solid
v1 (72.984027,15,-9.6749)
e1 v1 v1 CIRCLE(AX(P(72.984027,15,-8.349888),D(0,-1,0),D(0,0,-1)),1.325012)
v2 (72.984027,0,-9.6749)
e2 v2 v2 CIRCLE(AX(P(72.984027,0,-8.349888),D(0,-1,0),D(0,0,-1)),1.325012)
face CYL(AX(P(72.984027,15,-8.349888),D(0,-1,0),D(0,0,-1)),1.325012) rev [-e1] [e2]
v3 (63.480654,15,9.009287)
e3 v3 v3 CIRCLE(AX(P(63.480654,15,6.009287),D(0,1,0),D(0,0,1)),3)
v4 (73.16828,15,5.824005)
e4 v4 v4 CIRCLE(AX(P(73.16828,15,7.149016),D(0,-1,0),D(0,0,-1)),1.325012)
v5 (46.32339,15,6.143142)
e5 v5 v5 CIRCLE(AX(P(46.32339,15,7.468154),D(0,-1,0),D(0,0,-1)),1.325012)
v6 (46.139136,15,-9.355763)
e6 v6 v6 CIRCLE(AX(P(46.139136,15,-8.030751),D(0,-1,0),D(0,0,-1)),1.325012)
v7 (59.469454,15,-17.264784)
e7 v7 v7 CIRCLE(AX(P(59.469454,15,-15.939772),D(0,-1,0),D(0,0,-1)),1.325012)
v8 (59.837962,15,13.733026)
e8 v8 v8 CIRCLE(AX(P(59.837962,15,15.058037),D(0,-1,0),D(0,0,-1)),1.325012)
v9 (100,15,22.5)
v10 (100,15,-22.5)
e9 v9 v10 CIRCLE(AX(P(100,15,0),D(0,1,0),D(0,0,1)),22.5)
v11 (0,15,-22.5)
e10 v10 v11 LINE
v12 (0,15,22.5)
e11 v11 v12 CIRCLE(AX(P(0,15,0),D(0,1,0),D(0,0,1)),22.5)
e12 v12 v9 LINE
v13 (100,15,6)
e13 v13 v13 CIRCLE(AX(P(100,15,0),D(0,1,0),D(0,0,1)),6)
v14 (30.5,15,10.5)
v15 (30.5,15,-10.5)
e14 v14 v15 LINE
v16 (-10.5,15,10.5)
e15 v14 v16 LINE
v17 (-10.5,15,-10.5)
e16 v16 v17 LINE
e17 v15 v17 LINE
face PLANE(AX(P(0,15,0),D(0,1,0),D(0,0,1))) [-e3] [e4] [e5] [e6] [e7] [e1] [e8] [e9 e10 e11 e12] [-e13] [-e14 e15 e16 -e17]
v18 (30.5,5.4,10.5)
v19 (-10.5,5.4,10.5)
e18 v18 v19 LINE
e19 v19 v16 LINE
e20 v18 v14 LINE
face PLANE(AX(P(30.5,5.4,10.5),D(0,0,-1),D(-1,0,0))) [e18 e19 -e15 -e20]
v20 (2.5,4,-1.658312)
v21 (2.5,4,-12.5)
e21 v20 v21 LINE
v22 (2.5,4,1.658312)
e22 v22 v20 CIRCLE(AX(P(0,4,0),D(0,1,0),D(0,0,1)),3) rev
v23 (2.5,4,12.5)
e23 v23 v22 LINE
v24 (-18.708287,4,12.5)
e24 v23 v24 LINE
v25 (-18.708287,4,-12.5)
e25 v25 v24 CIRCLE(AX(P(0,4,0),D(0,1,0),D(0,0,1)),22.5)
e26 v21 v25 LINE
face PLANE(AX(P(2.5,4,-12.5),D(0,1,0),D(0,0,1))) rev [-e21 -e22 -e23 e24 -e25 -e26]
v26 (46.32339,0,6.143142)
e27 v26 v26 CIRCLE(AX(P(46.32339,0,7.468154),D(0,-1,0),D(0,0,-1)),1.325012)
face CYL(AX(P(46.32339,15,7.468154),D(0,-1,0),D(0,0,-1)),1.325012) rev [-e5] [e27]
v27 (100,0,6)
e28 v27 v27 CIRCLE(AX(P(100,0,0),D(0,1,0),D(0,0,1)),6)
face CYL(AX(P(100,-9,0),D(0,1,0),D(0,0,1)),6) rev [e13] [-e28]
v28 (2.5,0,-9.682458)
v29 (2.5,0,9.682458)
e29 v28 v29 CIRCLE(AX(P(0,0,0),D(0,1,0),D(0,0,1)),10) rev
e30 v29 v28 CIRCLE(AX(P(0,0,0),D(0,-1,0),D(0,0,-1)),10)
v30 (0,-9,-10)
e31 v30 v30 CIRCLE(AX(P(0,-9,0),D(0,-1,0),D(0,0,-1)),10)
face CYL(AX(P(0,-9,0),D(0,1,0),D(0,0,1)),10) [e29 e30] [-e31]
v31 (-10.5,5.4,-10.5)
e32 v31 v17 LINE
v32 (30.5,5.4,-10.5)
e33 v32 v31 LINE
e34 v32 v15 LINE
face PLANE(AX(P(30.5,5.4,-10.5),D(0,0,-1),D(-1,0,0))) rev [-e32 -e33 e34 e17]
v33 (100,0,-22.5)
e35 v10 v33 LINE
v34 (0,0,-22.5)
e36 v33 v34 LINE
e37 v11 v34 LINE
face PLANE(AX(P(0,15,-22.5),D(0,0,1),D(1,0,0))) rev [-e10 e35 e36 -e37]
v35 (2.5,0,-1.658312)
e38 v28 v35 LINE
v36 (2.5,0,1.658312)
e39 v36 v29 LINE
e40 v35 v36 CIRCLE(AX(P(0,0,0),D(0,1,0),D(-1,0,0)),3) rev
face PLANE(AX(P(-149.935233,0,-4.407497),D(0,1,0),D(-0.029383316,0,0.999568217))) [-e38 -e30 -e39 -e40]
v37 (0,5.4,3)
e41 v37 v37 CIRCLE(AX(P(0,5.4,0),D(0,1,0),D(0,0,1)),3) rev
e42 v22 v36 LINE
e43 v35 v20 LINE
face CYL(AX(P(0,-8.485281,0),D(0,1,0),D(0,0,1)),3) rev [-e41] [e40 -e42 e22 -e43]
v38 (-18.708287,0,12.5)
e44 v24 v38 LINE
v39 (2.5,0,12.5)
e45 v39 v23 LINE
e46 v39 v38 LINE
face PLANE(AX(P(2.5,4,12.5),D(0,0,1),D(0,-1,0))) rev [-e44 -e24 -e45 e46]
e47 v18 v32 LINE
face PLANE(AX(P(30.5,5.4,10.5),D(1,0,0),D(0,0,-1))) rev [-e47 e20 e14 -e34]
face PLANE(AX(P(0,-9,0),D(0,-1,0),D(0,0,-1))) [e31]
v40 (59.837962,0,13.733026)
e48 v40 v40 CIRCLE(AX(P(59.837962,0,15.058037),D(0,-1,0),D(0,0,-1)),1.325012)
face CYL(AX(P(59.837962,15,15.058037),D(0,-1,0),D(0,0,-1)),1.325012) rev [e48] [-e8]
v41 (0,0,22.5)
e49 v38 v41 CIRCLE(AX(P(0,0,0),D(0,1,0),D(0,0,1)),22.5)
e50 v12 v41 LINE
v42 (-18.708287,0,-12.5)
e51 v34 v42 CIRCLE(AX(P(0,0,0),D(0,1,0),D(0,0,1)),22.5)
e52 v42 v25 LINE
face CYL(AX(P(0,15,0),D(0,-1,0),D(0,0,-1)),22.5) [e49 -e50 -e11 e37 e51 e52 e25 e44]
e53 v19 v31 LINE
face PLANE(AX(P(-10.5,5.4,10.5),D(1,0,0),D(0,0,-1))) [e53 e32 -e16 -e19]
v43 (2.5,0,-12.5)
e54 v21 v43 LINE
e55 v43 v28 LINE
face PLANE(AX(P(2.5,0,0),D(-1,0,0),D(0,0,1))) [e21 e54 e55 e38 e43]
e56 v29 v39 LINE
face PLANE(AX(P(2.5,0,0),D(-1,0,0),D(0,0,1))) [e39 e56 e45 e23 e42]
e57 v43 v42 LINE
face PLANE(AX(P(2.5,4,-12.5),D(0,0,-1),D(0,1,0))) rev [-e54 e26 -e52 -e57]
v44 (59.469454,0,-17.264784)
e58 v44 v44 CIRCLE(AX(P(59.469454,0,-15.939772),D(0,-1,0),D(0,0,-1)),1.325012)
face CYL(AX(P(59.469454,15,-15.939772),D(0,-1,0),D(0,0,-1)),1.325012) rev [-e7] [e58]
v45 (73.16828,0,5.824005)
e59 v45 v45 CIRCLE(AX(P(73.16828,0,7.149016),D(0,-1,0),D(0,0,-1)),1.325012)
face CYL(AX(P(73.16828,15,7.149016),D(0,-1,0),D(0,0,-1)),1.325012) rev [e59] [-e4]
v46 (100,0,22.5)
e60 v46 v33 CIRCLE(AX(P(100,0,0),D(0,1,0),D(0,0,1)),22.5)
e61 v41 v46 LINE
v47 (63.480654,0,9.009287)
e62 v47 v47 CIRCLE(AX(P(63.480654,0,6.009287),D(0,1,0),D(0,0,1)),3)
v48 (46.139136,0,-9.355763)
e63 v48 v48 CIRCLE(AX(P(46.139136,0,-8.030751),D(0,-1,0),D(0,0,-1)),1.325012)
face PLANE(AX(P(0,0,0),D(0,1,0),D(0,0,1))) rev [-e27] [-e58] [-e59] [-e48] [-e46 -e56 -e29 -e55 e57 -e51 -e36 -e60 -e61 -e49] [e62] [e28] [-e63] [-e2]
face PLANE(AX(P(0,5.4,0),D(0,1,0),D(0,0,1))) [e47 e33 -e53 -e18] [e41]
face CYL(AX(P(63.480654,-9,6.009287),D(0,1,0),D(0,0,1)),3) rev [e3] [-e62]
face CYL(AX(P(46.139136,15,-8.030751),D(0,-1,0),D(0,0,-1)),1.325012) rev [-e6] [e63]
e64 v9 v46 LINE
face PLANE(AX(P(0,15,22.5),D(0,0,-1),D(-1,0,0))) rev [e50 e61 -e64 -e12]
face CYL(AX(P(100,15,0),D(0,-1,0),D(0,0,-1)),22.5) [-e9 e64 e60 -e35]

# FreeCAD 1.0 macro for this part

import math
import FreeCAD as App
import Part
import Sketcher
Q = App.Units.Quantity


def add_polygon(sketch, points):
    """Adds a closed chain of lines whose ends are joined by coincident constraints."""
    first, n = sketch.GeometryCount, len(points)
    for a, b in zip(points, points[1:] + points[:1]):
        sketch.addGeometry(Part.LineSegment(App.Vector(*a, 0), App.Vector(*b, 0)), False)
    for i in range(n):
        sketch.addConstraint(Sketcher.Constraint("Coincident", first + i, 2, first + (i + 1) % n, 1))

doc = App.newDocument("Part")
body = doc.addObject("PartDesign::Body", "Body")

# Sketch on XZ plane
sketch1 = body.newObject("Sketcher::SketchObject", "Sketch")
sketch1.AttachmentSupport = (doc.getObject("XZ_Plane"), [""])
sketch1.MapMode = "FlatFace"
sketch1.addGeometry([
    Part.LineSegment(App.Vector(100, -22, 0), App.Vector(0, -22, 0)),
    Part.ArcOfCircle(Part.Circle(App.Vector(0, 0, 0), App.Vector(0, 0, 1), 22), math.radians(90), math.radians(270)),
    Part.LineSegment(App.Vector(0, 22, 0), App.Vector(100, 22, 0)),
    Part.ArcOfCircle(Part.Circle(App.Vector(100, 0, 0), App.Vector(0, 0, 1), 22), math.radians(-90), math.radians(90)),
], False)
sketch1.addConstraint([
    Sketcher.Constraint("Tangent", 0, 2, 1, 2),
    Sketcher.Constraint("Tangent", 1, 1, 2, 1),
    Sketcher.Constraint("Tangent", 2, 2, 3, 2),
    Sketcher.Constraint("Tangent", 3, 1, 0, 1),
    Sketcher.Constraint("Horizontal", 0),
    Sketcher.Constraint("Horizontal", 2),
    Sketcher.Constraint("Coincident", 1, 3, -1, 1),
    Sketcher.Constraint("Radius", 1, Q("22.5 mm")),
    Sketcher.Constraint("DistanceX", 0, 2, 0, 1, Q("100 mm")),
])
pad1 = body.newObject("PartDesign::Pad", "Pad")
pad1.Profile = sketch1
pad1.Length = 15
pad1.Reversed = True

# Sketch on XZ plane
sketch2 = body.newObject("Sketcher::SketchObject", "Sketch001")
sketch2.AttachmentSupport = (doc.getObject("XZ_Plane"), [""])
sketch2.MapMode = "FlatFace"
sketch2.addGeometry(Part.Circle(App.Vector(0, 0, 0), App.Vector(0, 0, 1), 10), False)
sketch2.addConstraint([
    Sketcher.Constraint("Coincident", 0, 3, -1, 1),
    Sketcher.Constraint("Diameter", 0, Q("20 mm")),
])
pad2 = body.newObject("PartDesign::Pad", "Pad001")
pad2.Profile = sketch2
pad2.Length = 9

# Sketch on XZ plane
sketch3 = body.newObject("Sketcher::SketchObject", "Sketch002")
sketch3.AttachmentSupport = (doc.getObject("XZ_Plane"), [""])
sketch3.MapMode = "FlatFace"
sketch3.addGeometry(Part.Circle(App.Vector(0, 0, 0), App.Vector(0, 0, 1), 3), False)
sketch3.addConstraint([
    Sketcher.Constraint("Coincident", 0, 3, -1, 1),
    Sketcher.Constraint("Diameter", 0, Q("6 mm")),
])
pocket1 = body.newObject("PartDesign::Pocket", "Pocket")
pocket1.Profile = sketch3
pocket1.Length = 15

# Sketch on XZ plane
sketch4 = body.newObject("Sketcher::SketchObject", "Sketch003")
sketch4.AttachmentSupport = (doc.getObject("XZ_Plane"), [""])
sketch4.MapMode = "FlatFace"
sketch4.AttachmentOffset = App.Placement(App.Vector(0, 0, -15), App.Rotation())
add_polygon(sketch4, [(-10, -10), (-10, 10), (30, 10), (30, -10)])  # lines 0-3
sketch4.addConstraint([
    Sketcher.Constraint("Vertical", 0),
    Sketcher.Constraint("Horizontal", 1),
    Sketcher.Constraint("Vertical", 2),
    Sketcher.Constraint("Horizontal", 3),
    Sketcher.Constraint("DistanceX", 1, 1, 1, 2, Q("41 mm")),
    Sketcher.Constraint("DistanceY", 0, 1, 0, 2, Q("21 mm")),
    Sketcher.Constraint("DistanceX", 0, 2, -1, 1, Q("10.5 mm")),
    Sketcher.Constraint("DistanceY", -1, 1, 0, 2, Q("10.5 mm")),
])
pocket2 = body.newObject("PartDesign::Pocket", "Pocket001")
pocket2.Profile = sketch4
pocket2.Length = 9.6
pocket2.Reversed = True

# Sketch on YZ plane
sketch5 = body.newObject("Sketcher::SketchObject", "Sketch004")
sketch5.AttachmentSupport = (doc.getObject("YZ_Plane"), [""])
sketch5.MapMode = "FlatFace"
sketch5.AttachmentOffset = App.Placement(App.Vector(0, 0, -22.5), App.Rotation())
add_polygon(sketch5, [(4, -12.5), (0, -12.5), (0, 12.5), (4, 12.5)])  # lines 0-3
sketch5.addConstraint([
    Sketcher.Constraint("Horizontal", 0),
    Sketcher.Constraint("Vertical", 1),
    Sketcher.Constraint("Horizontal", 2),
    Sketcher.Constraint("Vertical", 3),
    Sketcher.Constraint("Symmetric", 0, 2, 1, 2, -1, 1),
    Sketcher.Constraint("DistanceX", 0, 2, 0, 1, Q("4 mm")),
    Sketcher.Constraint("DistanceY", 1, 1, 1, 2, Q("25 mm")),
])
pocket3 = body.newObject("PartDesign::Pocket", "Pocket002")
pocket3.Profile = sketch5
pocket3.Length = 25
pocket3.Reversed = True

# Sketch on XZ plane
sketch6 = body.newObject("Sketcher::SketchObject", "Sketch005")
sketch6.AttachmentSupport = (doc.getObject("XZ_Plane"), [""])
sketch6.MapMode = "FlatFace"
sketch6.AttachmentOffset = App.Placement(App.Vector(0, 0, -15), App.Rotation())
sketch6.addGeometry(Part.Circle(App.Vector(100, 0, 0), App.Vector(0, 0, 1), 6), False)
sketch6.addConstraint([
    Sketcher.Constraint("PointOnObject", 0, 3, -1),
    Sketcher.Constraint("Diameter", 0, Q("12 mm")),
    Sketcher.Constraint("DistanceX", -1, 1, 0, 3, Q("100 mm")),
])
pocket4 = body.newObject("PartDesign::Pocket", "Pocket003")
pocket4.Profile = sketch6
pocket4.Type = "ThroughAll"
pocket4.Midplane = True

# Sketch on XZ plane
sketch7 = body.newObject("Sketcher::SketchObject", "Sketch006")
sketch7.AttachmentSupport = (doc.getObject("XZ_Plane"), [""])
sketch7.MapMode = "FlatFace"
sketch7.AttachmentOffset = App.Placement(App.Vector(0, 0, -15), App.Rotation())
sketch7.addGeometry(Part.Circle(App.Vector(63.5, 6, 0), App.Vector(0, 0, 1), 3), False)
sketch7.addConstraint([
    Sketcher.Constraint("Diameter", 0, Q("6 mm")),
    Sketcher.Constraint("DistanceX", -1, 1, 0, 3, Q("63.480654 mm")),
    Sketcher.Constraint("DistanceY", -1, 1, 0, 3, Q("6.009287 mm")),
])
pocket5 = body.newObject("PartDesign::Pocket", "Pocket004")
pocket5.Profile = sketch7
pocket5.Type = "ThroughAll"
pocket5.Reversed = True

# Sketch on XZ plane
sketch8 = body.newObject("Sketcher::SketchObject", "Sketch007")
sketch8.AttachmentSupport = (doc.getObject("XZ_Plane"), [""])
sketch8.MapMode = "FlatFace"
sketch8.addGeometry([
    Part.Circle(App.Vector(46.1, -8, 0), App.Vector(0, 0, 1), 1.3),  # 0
    Part.Circle(App.Vector(46.3, 7.5, 0), App.Vector(0, 0, 1), 1.3),  # 1
    Part.Circle(App.Vector(59.8, 15.1, 0), App.Vector(0, 0, 1), 1.3),  # 2
    Part.Circle(App.Vector(73.2, 7.1, 0), App.Vector(0, 0, 1), 1.3),  # 3
    Part.Circle(App.Vector(73, -8.3, 0), App.Vector(0, 0, 1), 1.3),  # 4
    Part.Circle(App.Vector(59.5, -15.9, 0), App.Vector(0, 0, 1), 1.3),  # 5
], False)
sketch8.addConstraint([
    Sketcher.Constraint("Equal", 0, 1),
    Sketcher.Constraint("Equal", 1, 2),
    Sketcher.Constraint("Equal", 2, 3),
    Sketcher.Constraint("Equal", 3, 4),
    Sketcher.Constraint("Equal", 4, 5),
    Sketcher.Constraint("Diameter", 0, Q("2.650024 mm")),
    Sketcher.Constraint("DistanceY", 0, 3, -1, 1, Q("8.030751 mm")),
    Sketcher.Constraint("DistanceX", -1, 1, 1, 3, Q("46.32339 mm")),
    Sketcher.Constraint("DistanceX", -1, 1, 3, 3, Q("73.16828 mm")),
    Sketcher.Constraint("DistanceY", 4, 3, -1, 1, Q("8.349888 mm")),
    Sketcher.Constraint("DistanceY", 0, 3, 2, 3, Q("23.088789 mm")),
    Sketcher.Constraint("DistanceX", 2, 3, 3, 3, Q("13.330318 mm")),
    Sketcher.Constraint("DistanceY", 3, 3, 2, 3, Q("7.909021 mm")),
    Sketcher.Constraint("DistanceX", 0, 3, 4, 3, Q("26.844891 mm")),
    Sketcher.Constraint("DistanceY", 4, 3, 1, 3, Q("15.818042 mm")),
    Sketcher.Constraint("DistanceX", 0, 3, 5, 3, Q("13.330318 mm")),
    Sketcher.Constraint("DistanceY", 5, 3, 0, 3, Q("7.909021 mm")),
    Sketcher.Constraint("DistanceX", -1, 1, 0, 3, Q("46.139136 mm")),
])
pocket6 = body.newObject("PartDesign::Pocket", "Pocket005")
pocket6.Profile = sketch8
pocket6.Type = "ThroughAll"

doc.recompute()
